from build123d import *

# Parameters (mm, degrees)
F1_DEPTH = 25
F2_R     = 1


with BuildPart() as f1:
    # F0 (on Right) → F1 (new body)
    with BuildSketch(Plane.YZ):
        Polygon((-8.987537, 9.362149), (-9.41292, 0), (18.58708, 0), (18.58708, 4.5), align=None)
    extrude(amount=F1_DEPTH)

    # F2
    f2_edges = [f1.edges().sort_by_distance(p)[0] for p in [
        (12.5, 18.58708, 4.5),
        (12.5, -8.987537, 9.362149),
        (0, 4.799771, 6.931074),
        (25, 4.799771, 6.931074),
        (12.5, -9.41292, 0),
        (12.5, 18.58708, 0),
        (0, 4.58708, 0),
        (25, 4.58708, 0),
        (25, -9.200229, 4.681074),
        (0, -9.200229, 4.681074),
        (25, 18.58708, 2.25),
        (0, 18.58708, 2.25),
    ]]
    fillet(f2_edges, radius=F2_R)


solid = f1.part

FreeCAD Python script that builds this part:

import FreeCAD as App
import Part
import Sketcher
from FreeCAD import Vector
Q = App.Units.Quantity


def add_polygon(sketch, points):
    """Adds a closed chain of lines whose ends are joined by coincident constraints."""
    first, n = sketch.GeometryCount, len(points)
    for a, b in zip(points, points[1:] + points[:1]):
        sketch.addGeometry(Part.LineSegment(App.Vector(*a, 0), App.Vector(*b, 0)), False)
    for i in range(n):
        sketch.addConstraint(Sketcher.Constraint("Coincident", first + i, 2, first + (i + 1) % n, 1))

doc = App.newDocument("Part")
params = doc.addObject("Spreadsheet::Sheet", "Params")
for row, (alias, value) in enumerate([
    ("sketch1_width", "28 mm"),
    ("sketch1_length", "28 mm"),
    ("sketch1_height", "4.5 mm"),
    ("pad1_length", "25 mm"),
    ("fillet_radius", "1 mm"),
], start=1):
    params.set(f"A{row}", alias)
    params.set(f"B{row}", "=" + value)
    params.setAlias(f"B{row}", alias)

body = doc.addObject("PartDesign::Body", "Body")

# Sketch on YZ plane
sketch1 = body.newObject("Sketcher::SketchObject", "Sketch")
sketch1.AttachmentSupport = (doc.getObject("YZ_Plane"), [""])
sketch1.MapMode = "FlatFace"
add_polygon(sketch1, [(-9, 9.4), (-9.4, 0), (18.6, 0), (18.6, 4.5)])  # lines 0-3
sketch1.addConstraint(Sketcher.Constraint("Horizontal", 1))
sketch1.addConstraint(Sketcher.Constraint("Vertical", 2))
sketch1.addConstraint(Sketcher.Constraint("PointOnObject", 0, 2, -1))
sketch1.addConstraint(Sketcher.Constraint("DistanceX", 1, 1, 1, 2, 28.0))
sketch1.addConstraint(Sketcher.Constraint("Angle", 3, Q("170 deg")))
sketch1.addConstraint(Sketcher.Constraint("Distance", 3, 28.0))
sketch1.addConstraint(Sketcher.Constraint("DistanceY", 2, 1, 2, 2, 4.5))
sketch1.addConstraint(Sketcher.Constraint("DistanceX", 0, 2, -1, 1, 9.41292))
sketch1.setExpression("Constraints[7]", "Params.sketch1_width")
sketch1.setExpression("Constraints[9]", "Params.sketch1_length")
sketch1.setExpression("Constraints[10]", "Params.sketch1_height")
pad1 = body.newObject("PartDesign::Pad", "Pad")
pad1.Profile = sketch1
pad1.setExpression("Length", "Params.pad1_length")
doc.recompute()

fillet = body.newObject("PartDesign::Fillet", "Fillet")
fillet.Base = (pad1, ["Edge1"])
fillet.UseAllEdges = True
fillet.setExpression("Radius", "Params.fillet_radius")

doc.recompute()
